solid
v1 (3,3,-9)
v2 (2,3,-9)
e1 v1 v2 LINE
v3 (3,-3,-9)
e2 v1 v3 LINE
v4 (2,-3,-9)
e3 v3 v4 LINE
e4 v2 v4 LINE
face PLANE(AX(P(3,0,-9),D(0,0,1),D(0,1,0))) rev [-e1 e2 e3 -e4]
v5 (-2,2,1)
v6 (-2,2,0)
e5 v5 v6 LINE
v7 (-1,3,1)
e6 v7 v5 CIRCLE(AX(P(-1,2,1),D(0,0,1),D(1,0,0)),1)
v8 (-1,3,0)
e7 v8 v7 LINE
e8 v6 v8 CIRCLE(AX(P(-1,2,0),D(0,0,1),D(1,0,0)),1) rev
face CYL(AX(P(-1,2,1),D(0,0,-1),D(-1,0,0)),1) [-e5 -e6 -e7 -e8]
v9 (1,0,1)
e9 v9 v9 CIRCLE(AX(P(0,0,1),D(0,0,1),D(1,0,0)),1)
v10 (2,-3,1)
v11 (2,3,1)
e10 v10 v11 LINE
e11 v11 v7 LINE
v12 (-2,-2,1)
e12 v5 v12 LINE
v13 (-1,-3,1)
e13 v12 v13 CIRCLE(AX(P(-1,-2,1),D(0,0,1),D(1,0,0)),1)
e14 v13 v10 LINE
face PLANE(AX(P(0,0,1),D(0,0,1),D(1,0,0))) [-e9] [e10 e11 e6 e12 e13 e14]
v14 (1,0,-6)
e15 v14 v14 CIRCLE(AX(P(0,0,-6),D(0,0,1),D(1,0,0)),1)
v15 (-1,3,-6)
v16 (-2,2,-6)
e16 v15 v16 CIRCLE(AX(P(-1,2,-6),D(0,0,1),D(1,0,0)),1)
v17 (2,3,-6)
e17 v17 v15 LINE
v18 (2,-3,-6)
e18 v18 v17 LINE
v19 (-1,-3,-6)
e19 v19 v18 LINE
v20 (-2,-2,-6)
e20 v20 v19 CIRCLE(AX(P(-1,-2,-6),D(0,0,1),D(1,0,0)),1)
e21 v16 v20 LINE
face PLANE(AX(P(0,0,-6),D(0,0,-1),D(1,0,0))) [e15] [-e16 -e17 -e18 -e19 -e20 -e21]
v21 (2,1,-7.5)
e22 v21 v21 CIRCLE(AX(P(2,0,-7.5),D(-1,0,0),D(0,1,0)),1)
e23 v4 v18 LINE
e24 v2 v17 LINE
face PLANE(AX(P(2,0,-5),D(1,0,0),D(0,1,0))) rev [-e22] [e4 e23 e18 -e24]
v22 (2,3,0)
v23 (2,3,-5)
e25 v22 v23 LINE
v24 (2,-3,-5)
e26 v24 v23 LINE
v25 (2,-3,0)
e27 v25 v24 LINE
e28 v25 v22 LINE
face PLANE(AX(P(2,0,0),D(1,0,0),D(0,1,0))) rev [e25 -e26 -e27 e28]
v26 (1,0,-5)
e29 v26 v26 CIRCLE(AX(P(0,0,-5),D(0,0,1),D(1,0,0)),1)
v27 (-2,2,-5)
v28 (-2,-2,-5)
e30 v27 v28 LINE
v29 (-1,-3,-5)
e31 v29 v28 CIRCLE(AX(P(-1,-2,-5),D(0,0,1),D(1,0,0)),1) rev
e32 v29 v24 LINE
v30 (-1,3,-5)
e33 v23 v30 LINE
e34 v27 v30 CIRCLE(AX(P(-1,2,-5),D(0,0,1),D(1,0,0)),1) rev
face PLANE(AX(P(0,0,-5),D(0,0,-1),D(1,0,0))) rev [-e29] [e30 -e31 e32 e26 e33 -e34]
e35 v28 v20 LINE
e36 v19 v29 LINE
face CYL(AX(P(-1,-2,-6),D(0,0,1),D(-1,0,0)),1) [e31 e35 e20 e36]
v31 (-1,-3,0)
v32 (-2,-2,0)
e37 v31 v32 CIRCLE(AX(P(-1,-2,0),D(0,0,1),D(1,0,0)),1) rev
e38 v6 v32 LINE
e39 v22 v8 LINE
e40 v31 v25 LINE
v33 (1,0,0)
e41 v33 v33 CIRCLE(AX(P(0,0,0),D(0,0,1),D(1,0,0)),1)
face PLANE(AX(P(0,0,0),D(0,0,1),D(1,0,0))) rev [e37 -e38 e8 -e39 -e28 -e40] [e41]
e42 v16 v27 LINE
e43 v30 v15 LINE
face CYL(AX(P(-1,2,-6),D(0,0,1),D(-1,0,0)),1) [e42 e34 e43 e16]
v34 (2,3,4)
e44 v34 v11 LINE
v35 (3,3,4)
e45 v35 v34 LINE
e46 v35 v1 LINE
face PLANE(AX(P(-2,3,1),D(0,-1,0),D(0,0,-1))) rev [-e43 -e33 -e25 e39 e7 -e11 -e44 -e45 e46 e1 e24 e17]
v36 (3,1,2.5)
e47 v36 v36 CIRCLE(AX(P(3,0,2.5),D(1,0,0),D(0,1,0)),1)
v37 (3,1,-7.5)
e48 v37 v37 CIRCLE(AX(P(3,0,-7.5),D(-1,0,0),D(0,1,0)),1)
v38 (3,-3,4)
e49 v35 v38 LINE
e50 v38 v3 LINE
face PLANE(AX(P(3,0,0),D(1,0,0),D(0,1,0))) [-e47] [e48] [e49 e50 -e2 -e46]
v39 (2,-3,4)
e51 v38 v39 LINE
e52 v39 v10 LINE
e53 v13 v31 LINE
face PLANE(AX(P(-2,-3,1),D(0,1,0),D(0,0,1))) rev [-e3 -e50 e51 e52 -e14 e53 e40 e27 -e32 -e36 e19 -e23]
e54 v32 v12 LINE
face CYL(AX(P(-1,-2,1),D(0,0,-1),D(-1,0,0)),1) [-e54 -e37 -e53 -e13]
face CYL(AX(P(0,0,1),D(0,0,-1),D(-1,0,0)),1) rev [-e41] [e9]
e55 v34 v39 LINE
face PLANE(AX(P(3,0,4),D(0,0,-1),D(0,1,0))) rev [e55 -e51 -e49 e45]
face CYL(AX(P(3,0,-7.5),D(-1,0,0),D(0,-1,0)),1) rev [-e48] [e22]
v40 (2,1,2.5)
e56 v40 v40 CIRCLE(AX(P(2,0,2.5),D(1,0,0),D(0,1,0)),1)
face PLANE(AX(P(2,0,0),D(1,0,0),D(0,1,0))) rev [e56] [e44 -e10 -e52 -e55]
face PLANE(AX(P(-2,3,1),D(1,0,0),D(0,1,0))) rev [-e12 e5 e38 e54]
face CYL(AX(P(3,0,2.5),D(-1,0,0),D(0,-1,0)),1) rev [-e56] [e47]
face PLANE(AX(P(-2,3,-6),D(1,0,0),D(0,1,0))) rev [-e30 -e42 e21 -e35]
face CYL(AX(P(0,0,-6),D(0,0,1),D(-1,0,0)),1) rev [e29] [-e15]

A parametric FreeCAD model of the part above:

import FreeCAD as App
import Part
import Sketcher


def edges_at(feature, points):
    """Names of the edges that pass closest to the given points."""
    edges = feature.Shape.Edges
    near = lambda p: min(range(len(edges)), key=lambda i: edges[i].distToShape(Part.Vertex(*p))[0])
    return sorted({f"Edge{near(p) + 1}" for p in points})

doc = App.newDocument("Part")
body = doc.addObject("PartDesign::Body", "Body")

# Sketch on XY plane
sketch1 = body.newObject("Sketcher::SketchObject", "Sketch")
sketch1.AttachmentSupport = (doc.getObject("XY_Plane"), [""])
sketch1.MapMode = "FlatFace"
sketch1.addGeometry([
    Part.LineSegment(App.Vector(-2, 3, 0), App.Vector(-2, -3, 0)),  # 0
    Part.LineSegment(App.Vector(-2, -3, 0), App.Vector(2, -3, 0)),  # 1
    Part.LineSegment(App.Vector(2, -3, 0), App.Vector(2, 3, 0)),  # 2
    Part.LineSegment(App.Vector(2, 3, 0), App.Vector(-2, 3, 0)),  # 3
    Part.Circle(App.Vector(0, 0, 0), App.Vector(0, 0, 1), 1),  # 4
], False)
sketch1.addConstraint([
    Sketcher.Constraint("Coincident", 0, 2, 1, 1),
    Sketcher.Constraint("Coincident", 1, 2, 2, 1),
    Sketcher.Constraint("Coincident", 2, 2, 3, 1),
    Sketcher.Constraint("Coincident", 3, 2, 0, 1),
    Sketcher.Constraint("Vertical", 0),
    Sketcher.Constraint("Horizontal", 1),
    Sketcher.Constraint("Vertical", 2),
    Sketcher.Constraint("Horizontal", 3),
    Sketcher.Constraint("Coincident", 4, 3, -1, 1),
    Sketcher.Constraint("Symmetric", 0, 2, 2, 2, -1, 1),
    Sketcher.Constraint("Diameter", 4, 2.0),
    Sketcher.Constraint("DistanceX", 1, 1, 1, 2, 4.0),
    Sketcher.Constraint("DistanceY", 0, 2, 0, 1, 6.0),
])
pad1 = body.newObject("PartDesign::Pad", "Pad")
pad1.Profile = sketch1
pad1.Length = 1

# Sketch on YZ plane
sketch2 = body.newObject("Sketcher::SketchObject", "Sketch001")
sketch2.AttachmentSupport = (doc.getObject("YZ_Plane"), [""])
sketch2.MapMode = "FlatFace"
sketch2.AttachmentOffset = App.Placement(App.Vector(0, 0, 2), App.Rotation())
sketch2.addGeometry([
    Part.LineSegment(App.Vector(3, 4, 0), App.Vector(-3, 4, 0)),  # 0
    Part.LineSegment(App.Vector(-3, 4, 0), App.Vector(-3, -2.5, 0)),  # 1
    Part.LineSegment(App.Vector(-3, -2.5, 0), App.Vector(3, -2.5, 0)),  # 2
    Part.LineSegment(App.Vector(3, -2.5, 0), App.Vector(3, 4, 0)),  # 3
    Part.Circle(App.Vector(0, 2.5, 0), App.Vector(0, 0, 1), 1),  # 4
], False)
sketch2.addConstraint([
    Sketcher.Constraint("Coincident", 0, 2, 1, 1),
    Sketcher.Constraint("Coincident", 1, 2, 2, 1),
    Sketcher.Constraint("Coincident", 2, 2, 3, 1),
    Sketcher.Constraint("Coincident", 3, 2, 0, 1),
    Sketcher.Constraint("Horizontal", 0),
    Sketcher.Constraint("Vertical", 1),
    Sketcher.Constraint("Horizontal", 2),
    Sketcher.Constraint("Vertical", 3),
    Sketcher.Constraint("PointOnObject", 4, 3, -2),
    Sketcher.Constraint("Diameter", 4, 2.0),
    Sketcher.Constraint("DistanceX", 0, 2, 0, 1, 6.0),
    Sketcher.Constraint("DistanceY", 1, 2, 1, 1, 6.5),
    Sketcher.Constraint("DistanceX", 0, 2, -1, 1, 3.0),
    Sketcher.Constraint("DistanceY", -1, 1, 0, 2, 4.0),
    Sketcher.Constraint("DistanceY", 1, 2, 4, 3, 5.0),
])
pad2 = body.newObject("PartDesign::Pad", "Pad001")
pad2.Profile = sketch2
pad2.Length = 1
doc.recompute()

fillet = body.newObject("PartDesign::Fillet", "Fillet")
fillet.Base = (pad2, edges_at(pad2, [(-2, -3, 0.5), (-2, 3, 0.5)]))
fillet.Radius = 1
body2 = doc.addObject("PartDesign::Body", "Body001")
doc.recompute()

body2.BaseFeature = body
doc.recompute()

mirroring = doc.addObject("Part::Mirroring", "Mirroring")
mirroring.Source = body
mirroring.Base = App.Vector(3, 0, -2.5)
mirroring.Normal = App.Vector(0, 0, 1)
body3 = doc.addObject("PartDesign::Body", "Body002")
body3.BaseFeature = mirroring
boolean = body2.newObject("PartDesign::Boolean", "Boolean")
boolean.Type = "Fuse"
boolean.addObjects([body3])
doc.recompute()
mirroring.Visibility = False

doc.recompute()
